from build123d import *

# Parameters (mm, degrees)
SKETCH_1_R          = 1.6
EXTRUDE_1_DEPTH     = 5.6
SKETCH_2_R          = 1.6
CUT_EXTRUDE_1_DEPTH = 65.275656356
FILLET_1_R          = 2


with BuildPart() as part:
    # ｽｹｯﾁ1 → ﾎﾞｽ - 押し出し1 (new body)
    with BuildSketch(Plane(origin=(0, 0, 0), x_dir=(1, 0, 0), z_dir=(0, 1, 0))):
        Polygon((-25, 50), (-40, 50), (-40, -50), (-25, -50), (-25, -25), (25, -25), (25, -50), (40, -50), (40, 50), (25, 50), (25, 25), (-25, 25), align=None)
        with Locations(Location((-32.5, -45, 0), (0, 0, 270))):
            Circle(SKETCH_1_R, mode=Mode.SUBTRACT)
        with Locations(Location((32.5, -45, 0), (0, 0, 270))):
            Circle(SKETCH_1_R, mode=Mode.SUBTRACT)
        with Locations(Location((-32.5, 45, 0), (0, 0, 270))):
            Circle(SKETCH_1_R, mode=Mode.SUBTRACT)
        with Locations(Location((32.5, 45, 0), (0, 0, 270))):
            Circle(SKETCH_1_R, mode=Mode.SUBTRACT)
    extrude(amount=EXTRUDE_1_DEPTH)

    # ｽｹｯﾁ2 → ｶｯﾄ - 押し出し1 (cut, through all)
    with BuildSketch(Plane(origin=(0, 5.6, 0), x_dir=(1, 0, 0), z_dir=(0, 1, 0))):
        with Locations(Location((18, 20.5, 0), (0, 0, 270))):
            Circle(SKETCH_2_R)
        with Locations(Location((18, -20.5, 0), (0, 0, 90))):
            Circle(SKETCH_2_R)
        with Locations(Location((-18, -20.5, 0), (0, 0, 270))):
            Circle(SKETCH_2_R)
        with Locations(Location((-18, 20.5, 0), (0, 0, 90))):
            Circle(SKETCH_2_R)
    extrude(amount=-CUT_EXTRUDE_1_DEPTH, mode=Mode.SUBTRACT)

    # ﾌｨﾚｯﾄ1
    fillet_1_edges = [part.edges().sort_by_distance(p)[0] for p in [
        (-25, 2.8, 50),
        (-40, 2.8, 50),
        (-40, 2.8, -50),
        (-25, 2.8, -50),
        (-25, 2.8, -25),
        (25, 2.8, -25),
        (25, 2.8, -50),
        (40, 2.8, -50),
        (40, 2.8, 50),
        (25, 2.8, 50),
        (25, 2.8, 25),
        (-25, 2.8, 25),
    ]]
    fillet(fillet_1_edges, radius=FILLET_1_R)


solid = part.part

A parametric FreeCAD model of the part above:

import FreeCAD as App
import Part
import Sketcher

V = App.Vector


def edges_at(feature, points):
    """Names of the edges that pass closest to the given points."""
    edges = feature.Shape.Edges
    near = lambda p: min(range(len(edges)), key=lambda i: edges[i].distToShape(Part.Vertex(*p))[0])
    return sorted({f"Edge{near(p) + 1}" for p in points})


def add_polygon(sketch, points):
    """Adds a closed chain of lines whose ends are joined by coincident constraints."""
    first, n = sketch.GeometryCount, len(points)
    for a, b in zip(points, points[1:] + points[:1]):
        sketch.addGeometry(Part.LineSegment(App.Vector(*a, 0), App.Vector(*b, 0)), False)
    for i in range(n):
        sketch.addConstraint(Sketcher.Constraint("Coincident", first + i, 2, first + (i + 1) % n, 1))

doc = App.newDocument("Part")
body = doc.addObject("PartDesign::Body", "Body")

sketch1 = body.newObject("Sketcher::SketchObject", "Sketch")
sketch1.AttachmentSupport = (doc.getObject("XZ_Plane"), [""])
sketch1.MapMode = "FlatFace"
add_polygon(sketch1, [(-25, -50), (-40, -50), (-40, 50), (-25, 50), (-25, 25), (25, 25), (25, 50), (40, 50), (40, -50), (25, -50), (25, -25), (-25, -25)])
sketch1.addGeometry(Part.Circle(V(-32.5, 45, 0), V(0, 0, 1), 1.6), False)
sketch1.addGeometry(Part.Circle(V(32.5, 45, 0), V(0, 0, 1), 1.6), False)
sketch1.addGeometry(Part.Circle(V(-32.5, -45, 0), V(0, 0, 1), 1.6), False)
sketch1.addGeometry(Part.Circle(V(32.5, -45, 0), V(0, 0, 1), 1.6), False)
sketch1.addConstraint([
    Sketcher.Constraint("Horizontal", 0),
    Sketcher.Constraint("Vertical", 1),
    Sketcher.Constraint("Horizontal", 2),
    Sketcher.Constraint("Vertical", 3),
    Sketcher.Constraint("Horizontal", 4),
    Sketcher.Constraint("Vertical", 5),
    Sketcher.Constraint("Horizontal", 6),
    Sketcher.Constraint("Vertical", 7),
    Sketcher.Constraint("Horizontal", 8),
    Sketcher.Constraint("Vertical", 9),
    Sketcher.Constraint("Horizontal", 10),
    Sketcher.Constraint("Vertical", 11),
    Sketcher.Constraint("Equal", 12, 13),
    Sketcher.Constraint("Equal", 13, 14),
    Sketcher.Constraint("Equal", 14, 15),
    Sketcher.Constraint("Symmetric", 13, 3, 14, 3, -1, 1),
    Sketcher.Constraint("Symmetric", 12, 3, 15, 3, -1, 1),
    Sketcher.Constraint("Symmetric", 0, 2, 6, 2, -1, 1),
    Sketcher.Constraint("Symmetric", 2, 2, 8, 2, -1, 1),
    Sketcher.Constraint("Symmetric", 4, 2, 10, 2, -1, 1),
    Sketcher.Constraint("Symmetric", 12, 3, 13, 3, -2),
    Sketcher.Constraint("Symmetric", 2, 2, 5, 2, -2),
    Sketcher.Constraint("Diameter", 12, 3.2),
    Sketcher.Constraint("DistanceX", 0, 2, 0, 1, 15.0),
    Sketcher.Constraint("DistanceX", 4, 1, 4, 2, 50.0),
    Sketcher.Constraint("DistanceY", 1, 1, 1, 2, 100.0),
    Sketcher.Constraint("DistanceY", 3, 2, 3, 1, 25.0),
    Sketcher.Constraint("DistanceY", -1, 1, 12, 3, 45.0),
    Sketcher.Constraint("DistanceX", 12, 3, 13, 3, 65.0),
])
pad1 = body.newObject("PartDesign::Pad", "Pad")
pad1.Profile = sketch1
pad1.Length = 5.6
pad1.Reversed = True

sketch2 = body.newObject("Sketcher::SketchObject", "Sketch001")
sketch2.AttachmentSupport = (doc.getObject("XZ_Plane"), [""])
sketch2.MapMode = "FlatFace"
sketch2.AttachmentOffset = App.Placement(V(0, 0, -5.6), App.Rotation())
sketch2.addGeometry([
    Part.Circle(V(18, -20.5, 0), V(0, 0, 1), 1.6),
    Part.Circle(V(18, 20.5, 0), V(0, 0, 1), 1.6),
    Part.Circle(V(-18, 20.5, 0), V(0, 0, 1), 1.6),
    Part.Circle(V(-18, -20.5, 0), V(0, 0, 1), 1.6),
], False)
sketch2.addConstraint([
    Sketcher.Constraint("Equal", 0, 1),
    Sketcher.Constraint("Equal", 1, 2),
    Sketcher.Constraint("Equal", 2, 3),
    Sketcher.Constraint("Symmetric", 0, 3, 2, 3, -1, 1),
    Sketcher.Constraint("Symmetric", 1, 3, 3, 3, -1, 1),
    Sketcher.Constraint("Symmetric", 1, 3, 2, 3, -2),
    Sketcher.Constraint("Diameter", 0, 3.2),
    Sketcher.Constraint("DistanceX", -1, 1, 0, 3, 18.0),
    Sketcher.Constraint("DistanceY", 0, 3, 1, 3, 41.0),
])
pocket1 = body.newObject("PartDesign::Pocket", "Pocket")
pocket1.Profile = sketch2
pocket1.Type = "ThroughAll"
pocket1.Reversed = True
doc.recompute()

fillet = body.newObject("PartDesign::Fillet", "Fillet")
fillet.Base = (pocket1, edges_at(pocket1, [
    (-25, 2.8, 50),
    (-40, 2.8, 50),
    (-40, 2.8, -50),
    (-25, 2.8, -50),
    (-25, 2.8, -25),
    (25, 2.8, -25),
    (25, 2.8, -50),
    (40, 2.8, -50),
    (40, 2.8, 50),
    (25, 2.8, 50),
    (25, 2.8, 25),
    (-25, 2.8, 25),
]))
fillet.Radius = 2

doc.recompute()
